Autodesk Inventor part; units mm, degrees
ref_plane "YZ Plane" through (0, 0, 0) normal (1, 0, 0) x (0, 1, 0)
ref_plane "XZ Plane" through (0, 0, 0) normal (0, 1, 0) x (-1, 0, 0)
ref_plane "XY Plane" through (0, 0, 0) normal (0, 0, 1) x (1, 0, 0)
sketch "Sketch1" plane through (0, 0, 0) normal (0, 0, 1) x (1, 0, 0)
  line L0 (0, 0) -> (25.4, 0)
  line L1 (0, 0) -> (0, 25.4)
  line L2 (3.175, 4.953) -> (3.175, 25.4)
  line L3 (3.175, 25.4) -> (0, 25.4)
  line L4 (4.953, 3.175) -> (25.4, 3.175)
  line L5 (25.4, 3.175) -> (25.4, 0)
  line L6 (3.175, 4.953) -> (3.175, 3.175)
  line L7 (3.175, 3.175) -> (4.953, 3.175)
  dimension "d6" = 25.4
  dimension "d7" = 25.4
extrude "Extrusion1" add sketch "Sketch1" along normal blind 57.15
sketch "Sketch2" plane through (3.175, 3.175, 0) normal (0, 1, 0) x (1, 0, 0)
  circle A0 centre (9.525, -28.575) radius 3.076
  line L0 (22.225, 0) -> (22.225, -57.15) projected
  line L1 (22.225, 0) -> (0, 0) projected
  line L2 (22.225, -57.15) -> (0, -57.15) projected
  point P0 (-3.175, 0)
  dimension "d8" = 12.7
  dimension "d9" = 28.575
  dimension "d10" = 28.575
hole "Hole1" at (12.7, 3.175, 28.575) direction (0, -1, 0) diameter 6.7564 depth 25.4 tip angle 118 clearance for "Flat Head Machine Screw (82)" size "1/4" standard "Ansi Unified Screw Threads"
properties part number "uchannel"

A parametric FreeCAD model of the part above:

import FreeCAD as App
import Part
import Sketcher

V = App.Vector
Q = App.Units.Quantity


def add_polygon(sketch, points):
    """Adds a closed chain of lines whose ends are joined by coincident constraints."""
    first, n = sketch.GeometryCount, len(points)
    for a, b in zip(points, points[1:] + points[:1]):
        sketch.addGeometry(Part.LineSegment(App.Vector(*a, 0), App.Vector(*b, 0)), False)
    for i in range(n):
        sketch.addConstraint(Sketcher.Constraint("Coincident", first + i, 2, first + (i + 1) % n, 1))

doc = App.newDocument("Part")
body = doc.addObject("PartDesign::Body", "Body")

# Sketch on XY plane
sketch1 = doc.addObject("Sketcher::SketchObject", "Sketch")
body.addObject(sketch1)
sketch1.AttachmentSupport = (doc.XY_Plane, [""])
sketch1.MapMode = "FlatFace"
add_polygon(sketch1, [(0, 25.4), (0, 0), (25.4, 0), (25.4, 3.2), (3.2, 3.2), (3.2, 25.4)])  # lines 0-5
sketch1.addConstraint(Sketcher.Constraint("Vertical", 0))
sketch1.addConstraint(Sketcher.Constraint("Horizontal", 1))
sketch1.addConstraint(Sketcher.Constraint("Vertical", 2))
sketch1.addConstraint(Sketcher.Constraint("Horizontal", 3))
sketch1.addConstraint(Sketcher.Constraint("Vertical", 4))
sketch1.addConstraint(Sketcher.Constraint("Horizontal", 5))
sketch1.addConstraint(Sketcher.Constraint("Coincident", 0, 2, -1, 1))
sketch1.addConstraint(Sketcher.Constraint("Equal", 1, 0))
sketch1.addConstraint(Sketcher.Constraint("Equal", 5, 2))
sketch1.addConstraint(Sketcher.Constraint("DistanceX", 1, 1, 1, 2, Q("1 in")))
sketch1.addConstraint(Sketcher.Constraint("DistanceX", 3, 2, 3, 1, Q("0.875 in")))
pad1 = doc.addObject("PartDesign::Pad", "Pad")
body.addObject(pad1)
pad1.Profile = sketch1
pad1.Length = Q("2.25 in")

# Sketch on XZ plane
sketch2 = doc.addObject("Sketcher::SketchObject", "Sketch001")
body.addObject(sketch2)
sketch2.AttachmentSupport = (doc.XZ_Plane, [""])
sketch2.MapMode = "FlatFace"
sketch2.AttachmentOffset = App.Placement(V(0, 0, -0.125 * 25.4), App.Rotation())
sketch2.addGeometry(Part.Circle(V(12.7, 28.6, 0), V(0, 0, 1), 3.4), False)
sketch2.addConstraint(Sketcher.Constraint("Diameter", 0, Q("0.266 in")))
sketch2.addConstraint(Sketcher.Constraint("DistanceX", -1, 1, 0, 3, Q("0.5 in")))
sketch2.addConstraint(Sketcher.Constraint("DistanceY", -1, 1, 0, 3, Q("1.125 in")))
doc.recompute()
hole = doc.addObject("PartDesign::Hole", "Hole")
body.addObject(hole)
hole.Profile = sketch2
hole.ThreadType = "None"
hole.Diameter = Q("0.266 in")
hole.DepthType = "Dimension"
hole.Depth = Q("1 in")
hole.DrillPoint = "Angled"
hole.DrillPointAngle = 118
hole.Reversed = True

doc.recompute()
